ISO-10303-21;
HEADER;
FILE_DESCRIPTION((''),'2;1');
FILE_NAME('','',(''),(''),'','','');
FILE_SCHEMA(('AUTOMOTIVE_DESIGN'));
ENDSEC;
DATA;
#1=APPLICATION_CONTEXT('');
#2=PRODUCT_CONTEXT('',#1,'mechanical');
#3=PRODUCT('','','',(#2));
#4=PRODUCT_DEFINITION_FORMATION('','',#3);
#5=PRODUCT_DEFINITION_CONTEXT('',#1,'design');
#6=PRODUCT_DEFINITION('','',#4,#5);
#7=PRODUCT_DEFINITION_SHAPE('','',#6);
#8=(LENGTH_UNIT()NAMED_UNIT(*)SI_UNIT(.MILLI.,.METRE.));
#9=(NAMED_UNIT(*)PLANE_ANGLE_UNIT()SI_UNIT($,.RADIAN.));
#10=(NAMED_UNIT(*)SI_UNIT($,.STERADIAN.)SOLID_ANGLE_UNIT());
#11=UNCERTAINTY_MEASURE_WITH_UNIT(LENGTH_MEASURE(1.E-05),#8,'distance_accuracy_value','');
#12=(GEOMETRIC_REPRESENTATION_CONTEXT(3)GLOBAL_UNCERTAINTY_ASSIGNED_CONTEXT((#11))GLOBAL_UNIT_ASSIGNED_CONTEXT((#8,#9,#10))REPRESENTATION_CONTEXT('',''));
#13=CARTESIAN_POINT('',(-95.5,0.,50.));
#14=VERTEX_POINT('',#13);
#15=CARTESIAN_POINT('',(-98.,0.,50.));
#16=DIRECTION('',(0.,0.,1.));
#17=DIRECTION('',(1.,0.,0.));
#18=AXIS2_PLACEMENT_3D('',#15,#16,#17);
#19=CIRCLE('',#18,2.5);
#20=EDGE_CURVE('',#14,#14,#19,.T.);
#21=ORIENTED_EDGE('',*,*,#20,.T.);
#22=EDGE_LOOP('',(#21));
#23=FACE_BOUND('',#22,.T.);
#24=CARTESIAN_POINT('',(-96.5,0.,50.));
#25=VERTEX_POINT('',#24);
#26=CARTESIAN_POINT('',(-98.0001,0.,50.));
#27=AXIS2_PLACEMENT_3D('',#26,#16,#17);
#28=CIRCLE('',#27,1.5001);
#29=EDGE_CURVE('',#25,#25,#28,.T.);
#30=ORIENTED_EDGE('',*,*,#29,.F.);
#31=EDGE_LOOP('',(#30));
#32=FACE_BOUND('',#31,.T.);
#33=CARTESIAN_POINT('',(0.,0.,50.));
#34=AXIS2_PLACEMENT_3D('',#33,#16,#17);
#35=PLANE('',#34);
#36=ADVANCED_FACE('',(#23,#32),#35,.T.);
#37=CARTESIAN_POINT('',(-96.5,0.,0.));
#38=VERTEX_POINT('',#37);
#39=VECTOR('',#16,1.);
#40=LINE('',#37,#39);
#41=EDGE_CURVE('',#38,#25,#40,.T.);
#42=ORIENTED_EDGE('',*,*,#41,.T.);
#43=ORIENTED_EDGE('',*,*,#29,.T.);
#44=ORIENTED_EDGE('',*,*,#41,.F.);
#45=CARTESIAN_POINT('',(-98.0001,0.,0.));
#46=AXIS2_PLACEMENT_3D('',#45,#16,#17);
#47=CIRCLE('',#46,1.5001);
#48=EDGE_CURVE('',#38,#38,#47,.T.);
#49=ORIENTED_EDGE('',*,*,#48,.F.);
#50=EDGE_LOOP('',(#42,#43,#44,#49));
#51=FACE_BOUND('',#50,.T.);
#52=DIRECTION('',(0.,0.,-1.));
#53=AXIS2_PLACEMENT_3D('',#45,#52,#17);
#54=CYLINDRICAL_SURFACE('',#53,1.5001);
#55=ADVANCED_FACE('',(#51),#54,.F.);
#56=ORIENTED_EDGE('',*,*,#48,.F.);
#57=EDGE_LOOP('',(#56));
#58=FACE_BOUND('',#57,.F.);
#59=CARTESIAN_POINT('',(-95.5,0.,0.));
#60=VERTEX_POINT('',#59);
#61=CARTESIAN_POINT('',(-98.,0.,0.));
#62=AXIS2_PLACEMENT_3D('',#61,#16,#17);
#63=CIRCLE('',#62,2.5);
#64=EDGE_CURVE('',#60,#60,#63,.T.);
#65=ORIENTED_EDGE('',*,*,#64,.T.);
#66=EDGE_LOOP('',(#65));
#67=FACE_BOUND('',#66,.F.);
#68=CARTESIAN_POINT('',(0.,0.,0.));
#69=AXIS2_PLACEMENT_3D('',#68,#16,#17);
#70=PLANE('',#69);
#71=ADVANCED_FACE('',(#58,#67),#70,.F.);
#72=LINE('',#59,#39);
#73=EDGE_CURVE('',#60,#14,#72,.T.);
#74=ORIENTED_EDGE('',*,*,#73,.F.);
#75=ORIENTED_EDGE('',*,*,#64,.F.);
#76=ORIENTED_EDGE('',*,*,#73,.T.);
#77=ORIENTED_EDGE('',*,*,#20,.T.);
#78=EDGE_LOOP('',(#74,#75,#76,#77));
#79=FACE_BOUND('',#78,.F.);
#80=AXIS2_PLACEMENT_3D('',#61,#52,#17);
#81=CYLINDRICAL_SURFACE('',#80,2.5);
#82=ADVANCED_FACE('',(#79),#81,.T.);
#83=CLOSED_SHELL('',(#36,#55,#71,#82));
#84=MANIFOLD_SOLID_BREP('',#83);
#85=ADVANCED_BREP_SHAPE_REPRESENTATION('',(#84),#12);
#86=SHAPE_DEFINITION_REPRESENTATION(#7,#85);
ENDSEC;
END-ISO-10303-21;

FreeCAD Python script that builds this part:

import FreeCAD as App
import Part
import Sketcher
Q = App.Units.Quantity

doc = App.newDocument("Part")
params = doc.addObject("Spreadsheet::Sheet", "Params")
for row, (alias, value) in enumerate([
    ("sketch1_diameter", "5 mm"),
    ("pad1_length", "50 mm"),
], start=1):
    params.set(f"A{row}", alias)
    params.set(f"B{row}", "=" + value)
    params.setAlias(f"B{row}", alias)

body = doc.addObject("PartDesign::Body", "Body")

# Sketch on XY plane
sketch1 = body.newObject("Sketcher::SketchObject", "Sketch")
sketch1.AttachmentSupport = (doc.getObject("XY_Plane"), [""])
sketch1.MapMode = "FlatFace"
sketch1.addGeometry([
    Part.Circle(App.Vector(-98, 0, 0), App.Vector(0, 0, 1), 2.5),
    Part.Circle(App.Vector(-98.0001, 0, 0), App.Vector(0, 0, 1), 1.5001),
], False)
sketch1.addConstraint([
    Sketcher.Constraint("Coincident", 1, 3, 0, 3),
    Sketcher.Constraint("PointOnObject", 0, 3, -1),
    Sketcher.Constraint("Diameter", 0, Q("5 mm")),
    Sketcher.Constraint("DistanceX", 0, 3, -1, 1, Q("98 mm")),
    Sketcher.Constraint("Diameter", 1, Q("3.0002 mm")),
])
sketch1.setExpression("Constraints[2]", "Params.sketch1_diameter")
pad1 = body.newObject("PartDesign::Pad", "Pad")
pad1.Profile = sketch1
pad1.setExpression("Length", "Params.pad1_length")

doc.recompute()
